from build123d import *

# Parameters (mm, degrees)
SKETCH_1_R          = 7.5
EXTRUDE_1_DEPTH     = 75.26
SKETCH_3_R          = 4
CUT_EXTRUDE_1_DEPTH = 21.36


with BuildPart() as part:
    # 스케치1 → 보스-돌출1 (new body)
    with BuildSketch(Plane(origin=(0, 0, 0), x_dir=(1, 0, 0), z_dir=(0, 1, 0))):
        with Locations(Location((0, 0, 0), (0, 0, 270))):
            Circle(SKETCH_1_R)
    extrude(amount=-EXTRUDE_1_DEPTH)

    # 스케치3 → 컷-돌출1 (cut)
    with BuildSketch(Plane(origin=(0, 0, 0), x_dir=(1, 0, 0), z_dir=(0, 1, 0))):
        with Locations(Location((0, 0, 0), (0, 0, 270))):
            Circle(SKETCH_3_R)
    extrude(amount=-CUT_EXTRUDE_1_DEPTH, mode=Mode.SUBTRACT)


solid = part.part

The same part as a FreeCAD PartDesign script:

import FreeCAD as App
import Part
import Sketcher

V = App.Vector

doc = App.newDocument("Part")
body = doc.addObject("PartDesign::Body", "Body")

sketch1 = body.newObject("Sketcher::SketchObject", "Sketch")
sketch1.AttachmentSupport = (doc.getObject("XZ_Plane"), [""])
sketch1.MapMode = "FlatFace"
sketch1.addGeometry(Part.Circle(V(0, 0, 0), V(0, 0, 1), 8), False)
sketch1.addConstraint([
    Sketcher.Constraint("Coincident", 0, 3, -1, 1),
    Sketcher.Constraint("Diameter", 0, 15.0),
])
pad1 = body.newObject("PartDesign::Pad", "Pad")
pad1.Profile = sketch1
pad1.Length = 75.26

sketch2 = body.newObject("Sketcher::SketchObject", "Sketch001")
sketch2.AttachmentSupport = (doc.getObject("XZ_Plane"), [""])
sketch2.MapMode = "FlatFace"
sketch2.addGeometry(Part.Circle(V(0, 0, 0), V(0, 0, 1), 4), False)
sketch2.addConstraint([
    Sketcher.Constraint("Coincident", 0, 3, -1, 1),
    Sketcher.Constraint("Diameter", 0, 8.0),
])
pocket1 = body.newObject("PartDesign::Pocket", "Pocket")
pocket1.Profile = sketch2
pocket1.Length = 21.36
pocket1.Reversed = True

doc.recompute()
